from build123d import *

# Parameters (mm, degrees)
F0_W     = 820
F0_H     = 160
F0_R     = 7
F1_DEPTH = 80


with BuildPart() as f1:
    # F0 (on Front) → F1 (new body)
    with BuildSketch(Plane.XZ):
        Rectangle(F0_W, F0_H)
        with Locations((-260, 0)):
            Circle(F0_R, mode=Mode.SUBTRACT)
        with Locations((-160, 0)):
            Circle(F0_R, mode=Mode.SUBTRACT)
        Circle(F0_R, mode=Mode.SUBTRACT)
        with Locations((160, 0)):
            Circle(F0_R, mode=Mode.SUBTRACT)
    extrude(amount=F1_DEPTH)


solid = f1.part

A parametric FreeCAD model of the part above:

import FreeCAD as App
import Part
import Sketcher
from FreeCAD import Vector

doc = App.newDocument("Part")
body = doc.addObject("PartDesign::Body", "Body")

# Sketch on XZ plane
sketch1 = body.newObject("Sketcher::SketchObject", "Sketch")
sketch1.AttachmentSupport = (doc.getObject("XZ_Plane"), [""])
sketch1.MapMode = "FlatFace"
sketch1.addGeometry([
    Part.LineSegment(Vector(-410, 80, 0), Vector(-410, -80, 0)),  # 0
    Part.LineSegment(Vector(-410, -80, 0), Vector(410, -80, 0)),  # 1
    Part.LineSegment(Vector(410, -80, 0), Vector(410, 80, 0)),  # 2
    Part.LineSegment(Vector(410, 80, 0), Vector(-410, 80, 0)),  # 3
    Part.Circle(Vector(-260, 0, 0), Vector(0, 0, 1), 7),  # 4
    Part.Circle(Vector(-160, 0, 0), Vector(0, 0, 1), 7),  # 5
    Part.Circle(Vector(0, 0, 0), Vector(0, 0, 1), 7),  # 6
    Part.Circle(Vector(160, 0, 0), Vector(0, 0, 1), 7),  # 7
], False)
sketch1.addConstraint([
    Sketcher.Constraint("Coincident", 0, 2, 1, 1),
    Sketcher.Constraint("Coincident", 1, 2, 2, 1),
    Sketcher.Constraint("Coincident", 2, 2, 3, 1),
    Sketcher.Constraint("Coincident", 3, 2, 0, 1),
    Sketcher.Constraint("Vertical", 0),
    Sketcher.Constraint("Horizontal", 1),
    Sketcher.Constraint("Vertical", 2),
    Sketcher.Constraint("Horizontal", 3),
    Sketcher.Constraint("Coincident", 6, 3, -1, 1),
    Sketcher.Constraint("Equal", 4, 5),
    Sketcher.Constraint("Equal", 5, 6),
    Sketcher.Constraint("Equal", 6, 7),
    Sketcher.Constraint("Symmetric", 5, 3, 7, 3, -1, 1),
    Sketcher.Constraint("Symmetric", 0, 2, 2, 2, -1, 1),
    Sketcher.Constraint("PointOnObject", 4, 3, -1),
    Sketcher.Constraint("PointOnObject", 5, 3, -1),
    Sketcher.Constraint("Diameter", 4, 14.0),
    Sketcher.Constraint("DistanceX", 1, 1, 1, 2, 820.0),
    Sketcher.Constraint("DistanceY", 0, 2, 0, 1, 160.0),
    Sketcher.Constraint("DistanceX", 4, 3, -1, 1, 260.0),
    Sketcher.Constraint("DistanceX", 5, 3, -1, 1, 160.0),
])
pad1 = body.newObject("PartDesign::Pad", "Pad")
pad1.Profile = sketch1
pad1.Length = 80

doc.recompute()
